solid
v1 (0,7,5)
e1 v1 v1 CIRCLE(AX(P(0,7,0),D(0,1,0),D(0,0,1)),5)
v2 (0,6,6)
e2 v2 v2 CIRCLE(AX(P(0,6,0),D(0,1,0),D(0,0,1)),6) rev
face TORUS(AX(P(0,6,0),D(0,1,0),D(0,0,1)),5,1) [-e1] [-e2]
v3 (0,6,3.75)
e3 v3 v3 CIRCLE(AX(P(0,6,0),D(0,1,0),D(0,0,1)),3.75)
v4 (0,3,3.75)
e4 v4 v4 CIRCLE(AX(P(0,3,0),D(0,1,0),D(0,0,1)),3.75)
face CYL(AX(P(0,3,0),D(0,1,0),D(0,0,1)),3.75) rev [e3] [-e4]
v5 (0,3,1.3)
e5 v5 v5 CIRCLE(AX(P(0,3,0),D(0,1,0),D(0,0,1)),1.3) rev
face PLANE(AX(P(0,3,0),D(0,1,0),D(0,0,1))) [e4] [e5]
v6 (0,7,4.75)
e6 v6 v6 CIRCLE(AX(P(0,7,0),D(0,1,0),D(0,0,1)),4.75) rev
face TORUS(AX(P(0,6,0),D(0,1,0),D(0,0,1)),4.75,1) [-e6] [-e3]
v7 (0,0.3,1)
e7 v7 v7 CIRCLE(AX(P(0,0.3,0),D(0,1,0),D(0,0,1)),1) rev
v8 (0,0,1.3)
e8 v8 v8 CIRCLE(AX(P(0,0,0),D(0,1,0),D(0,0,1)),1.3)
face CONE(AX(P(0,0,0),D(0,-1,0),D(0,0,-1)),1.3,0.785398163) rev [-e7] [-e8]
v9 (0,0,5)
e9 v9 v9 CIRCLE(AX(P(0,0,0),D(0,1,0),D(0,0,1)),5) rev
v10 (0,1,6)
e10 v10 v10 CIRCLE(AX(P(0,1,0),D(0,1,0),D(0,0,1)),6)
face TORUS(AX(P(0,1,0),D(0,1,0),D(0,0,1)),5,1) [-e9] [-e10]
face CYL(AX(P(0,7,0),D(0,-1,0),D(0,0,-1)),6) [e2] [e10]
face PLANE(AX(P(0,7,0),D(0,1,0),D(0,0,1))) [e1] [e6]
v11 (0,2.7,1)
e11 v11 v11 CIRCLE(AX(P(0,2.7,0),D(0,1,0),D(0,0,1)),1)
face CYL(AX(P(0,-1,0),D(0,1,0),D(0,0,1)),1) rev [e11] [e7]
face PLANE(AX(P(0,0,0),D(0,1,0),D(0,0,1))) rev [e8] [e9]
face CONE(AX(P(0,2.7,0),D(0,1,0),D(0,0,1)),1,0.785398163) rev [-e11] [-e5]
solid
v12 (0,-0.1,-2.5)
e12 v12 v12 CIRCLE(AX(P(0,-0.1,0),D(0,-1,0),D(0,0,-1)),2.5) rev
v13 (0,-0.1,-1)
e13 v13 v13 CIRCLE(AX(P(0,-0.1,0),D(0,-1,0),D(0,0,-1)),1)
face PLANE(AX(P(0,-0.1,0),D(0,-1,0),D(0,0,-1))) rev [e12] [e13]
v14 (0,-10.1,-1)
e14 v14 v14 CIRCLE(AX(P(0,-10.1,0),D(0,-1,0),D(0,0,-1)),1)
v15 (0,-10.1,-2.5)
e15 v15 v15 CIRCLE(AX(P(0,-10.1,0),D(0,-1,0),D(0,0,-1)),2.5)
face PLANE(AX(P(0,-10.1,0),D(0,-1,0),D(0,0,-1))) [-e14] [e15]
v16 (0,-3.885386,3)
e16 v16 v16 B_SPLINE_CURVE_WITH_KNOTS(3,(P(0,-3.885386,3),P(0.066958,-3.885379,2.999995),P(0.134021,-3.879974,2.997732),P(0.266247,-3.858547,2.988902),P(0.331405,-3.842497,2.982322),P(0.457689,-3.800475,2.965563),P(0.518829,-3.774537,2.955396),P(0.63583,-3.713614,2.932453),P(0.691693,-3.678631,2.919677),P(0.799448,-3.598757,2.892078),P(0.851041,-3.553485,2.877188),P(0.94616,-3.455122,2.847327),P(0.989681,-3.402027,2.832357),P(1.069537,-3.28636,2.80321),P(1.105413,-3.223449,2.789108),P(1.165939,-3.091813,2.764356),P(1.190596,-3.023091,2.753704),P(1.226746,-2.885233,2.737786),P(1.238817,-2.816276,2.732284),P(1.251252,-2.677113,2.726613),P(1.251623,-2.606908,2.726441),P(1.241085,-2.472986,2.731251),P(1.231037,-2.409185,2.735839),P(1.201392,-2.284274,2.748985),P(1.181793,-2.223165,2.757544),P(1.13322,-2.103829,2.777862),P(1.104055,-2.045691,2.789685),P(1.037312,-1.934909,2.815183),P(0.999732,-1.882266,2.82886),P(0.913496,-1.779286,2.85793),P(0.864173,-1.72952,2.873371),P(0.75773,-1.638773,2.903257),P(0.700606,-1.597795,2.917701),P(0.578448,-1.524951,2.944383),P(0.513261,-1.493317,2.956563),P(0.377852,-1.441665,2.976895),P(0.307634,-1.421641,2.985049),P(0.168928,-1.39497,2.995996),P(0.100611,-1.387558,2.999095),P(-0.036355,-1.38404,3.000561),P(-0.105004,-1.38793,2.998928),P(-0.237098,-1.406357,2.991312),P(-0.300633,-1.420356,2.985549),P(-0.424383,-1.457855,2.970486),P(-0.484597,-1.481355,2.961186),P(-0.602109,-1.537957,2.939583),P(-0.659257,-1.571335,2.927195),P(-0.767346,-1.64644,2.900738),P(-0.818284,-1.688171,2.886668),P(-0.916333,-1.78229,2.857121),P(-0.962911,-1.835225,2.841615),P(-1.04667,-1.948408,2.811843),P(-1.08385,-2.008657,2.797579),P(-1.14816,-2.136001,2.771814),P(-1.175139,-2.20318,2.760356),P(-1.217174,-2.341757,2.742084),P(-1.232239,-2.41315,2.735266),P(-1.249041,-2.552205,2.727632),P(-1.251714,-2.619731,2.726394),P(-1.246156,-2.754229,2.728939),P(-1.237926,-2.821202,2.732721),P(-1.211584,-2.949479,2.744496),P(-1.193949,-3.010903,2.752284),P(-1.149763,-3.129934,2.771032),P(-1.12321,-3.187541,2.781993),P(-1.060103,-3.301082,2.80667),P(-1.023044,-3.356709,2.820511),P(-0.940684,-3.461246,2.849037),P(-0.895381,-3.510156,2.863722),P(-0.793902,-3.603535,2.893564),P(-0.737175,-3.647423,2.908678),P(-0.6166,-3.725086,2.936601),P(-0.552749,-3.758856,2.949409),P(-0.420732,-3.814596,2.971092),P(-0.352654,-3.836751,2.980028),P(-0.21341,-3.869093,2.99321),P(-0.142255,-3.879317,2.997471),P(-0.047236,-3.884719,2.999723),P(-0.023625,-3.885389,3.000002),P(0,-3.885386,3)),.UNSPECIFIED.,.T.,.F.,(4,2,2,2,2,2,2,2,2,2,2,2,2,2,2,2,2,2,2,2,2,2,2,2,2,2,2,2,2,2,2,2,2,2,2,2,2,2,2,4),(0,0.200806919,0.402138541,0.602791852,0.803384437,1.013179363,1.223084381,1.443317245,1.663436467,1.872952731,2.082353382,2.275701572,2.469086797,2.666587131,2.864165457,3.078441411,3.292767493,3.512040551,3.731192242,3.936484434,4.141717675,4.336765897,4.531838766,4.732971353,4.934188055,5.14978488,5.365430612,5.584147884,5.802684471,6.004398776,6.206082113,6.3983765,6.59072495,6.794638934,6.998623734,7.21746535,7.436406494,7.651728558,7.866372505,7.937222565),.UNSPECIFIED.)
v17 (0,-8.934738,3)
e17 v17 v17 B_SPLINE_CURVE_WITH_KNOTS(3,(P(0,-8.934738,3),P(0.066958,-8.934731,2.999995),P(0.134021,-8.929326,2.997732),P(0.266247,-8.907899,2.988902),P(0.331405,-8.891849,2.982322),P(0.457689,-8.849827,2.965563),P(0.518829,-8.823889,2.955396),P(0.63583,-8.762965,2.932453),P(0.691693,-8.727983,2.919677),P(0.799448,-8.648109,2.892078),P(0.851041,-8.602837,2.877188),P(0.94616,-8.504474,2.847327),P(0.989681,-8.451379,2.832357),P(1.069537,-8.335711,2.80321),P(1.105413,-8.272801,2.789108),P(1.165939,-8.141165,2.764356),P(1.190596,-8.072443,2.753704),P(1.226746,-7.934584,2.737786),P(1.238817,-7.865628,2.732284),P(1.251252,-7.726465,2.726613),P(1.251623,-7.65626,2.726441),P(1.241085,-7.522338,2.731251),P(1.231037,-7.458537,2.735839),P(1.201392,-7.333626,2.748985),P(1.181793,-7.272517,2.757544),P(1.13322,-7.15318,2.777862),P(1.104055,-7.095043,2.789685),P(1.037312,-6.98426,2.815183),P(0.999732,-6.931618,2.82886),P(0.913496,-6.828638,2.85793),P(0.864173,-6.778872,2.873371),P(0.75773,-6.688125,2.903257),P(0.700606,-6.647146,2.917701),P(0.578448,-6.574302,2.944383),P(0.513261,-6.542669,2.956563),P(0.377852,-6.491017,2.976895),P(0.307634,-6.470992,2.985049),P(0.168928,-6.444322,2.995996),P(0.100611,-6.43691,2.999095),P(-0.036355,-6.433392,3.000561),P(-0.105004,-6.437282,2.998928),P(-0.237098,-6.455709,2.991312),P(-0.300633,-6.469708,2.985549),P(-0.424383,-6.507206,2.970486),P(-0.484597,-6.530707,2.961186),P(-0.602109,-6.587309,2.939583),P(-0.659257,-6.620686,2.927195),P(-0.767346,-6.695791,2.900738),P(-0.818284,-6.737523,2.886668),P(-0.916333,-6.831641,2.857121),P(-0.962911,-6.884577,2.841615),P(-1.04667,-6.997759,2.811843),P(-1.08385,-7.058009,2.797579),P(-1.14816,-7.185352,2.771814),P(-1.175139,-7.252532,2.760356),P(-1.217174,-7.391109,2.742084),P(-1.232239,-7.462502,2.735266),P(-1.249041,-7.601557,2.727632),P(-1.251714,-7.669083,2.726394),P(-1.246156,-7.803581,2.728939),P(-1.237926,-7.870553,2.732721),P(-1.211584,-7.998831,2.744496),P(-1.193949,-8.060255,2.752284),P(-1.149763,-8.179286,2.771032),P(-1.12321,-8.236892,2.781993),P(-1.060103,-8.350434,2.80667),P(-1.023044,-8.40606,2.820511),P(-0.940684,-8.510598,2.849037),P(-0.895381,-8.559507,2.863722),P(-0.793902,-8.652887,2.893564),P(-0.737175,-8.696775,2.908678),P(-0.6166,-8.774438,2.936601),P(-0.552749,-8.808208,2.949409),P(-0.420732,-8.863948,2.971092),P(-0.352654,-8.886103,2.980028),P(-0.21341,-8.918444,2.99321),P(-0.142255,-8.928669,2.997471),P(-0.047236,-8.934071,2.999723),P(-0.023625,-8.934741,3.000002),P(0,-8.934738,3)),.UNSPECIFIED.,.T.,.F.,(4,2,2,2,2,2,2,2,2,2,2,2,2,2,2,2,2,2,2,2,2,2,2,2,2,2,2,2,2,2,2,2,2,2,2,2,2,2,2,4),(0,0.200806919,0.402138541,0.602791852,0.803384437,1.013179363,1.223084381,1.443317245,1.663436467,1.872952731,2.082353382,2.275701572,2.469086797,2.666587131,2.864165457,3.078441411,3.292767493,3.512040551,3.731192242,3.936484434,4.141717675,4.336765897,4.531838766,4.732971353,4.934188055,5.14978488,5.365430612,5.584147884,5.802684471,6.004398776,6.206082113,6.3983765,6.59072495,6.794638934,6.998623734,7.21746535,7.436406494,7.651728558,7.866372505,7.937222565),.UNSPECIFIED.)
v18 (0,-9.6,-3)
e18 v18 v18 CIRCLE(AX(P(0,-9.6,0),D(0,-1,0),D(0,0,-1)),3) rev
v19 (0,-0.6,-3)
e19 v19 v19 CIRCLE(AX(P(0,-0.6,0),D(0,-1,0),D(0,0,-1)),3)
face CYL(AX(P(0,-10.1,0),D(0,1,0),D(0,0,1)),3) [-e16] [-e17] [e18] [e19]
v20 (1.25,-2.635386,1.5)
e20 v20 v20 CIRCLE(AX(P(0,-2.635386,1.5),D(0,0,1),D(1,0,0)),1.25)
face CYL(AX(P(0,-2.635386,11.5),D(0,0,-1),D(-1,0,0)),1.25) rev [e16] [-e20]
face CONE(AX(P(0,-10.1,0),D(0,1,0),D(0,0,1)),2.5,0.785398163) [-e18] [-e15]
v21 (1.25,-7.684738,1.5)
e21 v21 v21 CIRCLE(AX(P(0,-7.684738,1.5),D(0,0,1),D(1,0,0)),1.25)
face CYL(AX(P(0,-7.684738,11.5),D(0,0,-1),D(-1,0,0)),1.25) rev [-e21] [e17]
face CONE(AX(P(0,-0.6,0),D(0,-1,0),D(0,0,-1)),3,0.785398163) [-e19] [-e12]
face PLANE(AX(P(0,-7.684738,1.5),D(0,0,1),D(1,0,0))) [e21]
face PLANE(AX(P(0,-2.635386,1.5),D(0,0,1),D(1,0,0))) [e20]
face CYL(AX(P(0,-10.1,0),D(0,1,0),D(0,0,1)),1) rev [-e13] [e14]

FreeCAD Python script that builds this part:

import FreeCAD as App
import Part
import Sketcher
from FreeCAD import Vector
Q = App.Units.Quantity


def edges_at(feature, points):
    """Names of the edges that pass closest to the given points."""
    edges = feature.Shape.Edges
    near = lambda p: min(range(len(edges)), key=lambda i: edges[i].distToShape(Part.Vertex(*p))[0])
    return sorted({f"Edge{near(p) + 1}" for p in points})

doc = App.newDocument("Part")
body = doc.addObject("PartDesign::Body", "Body")

# Sketch on XZ plane
sketch1 = body.newObject("Sketcher::SketchObject", "Sketch")
sketch1.AttachmentSupport = (doc.getObject("XZ_Plane"), [""])
sketch1.MapMode = "FlatFace"
sketch1.addGeometry(Part.Circle(Vector(0, 0, 0), Vector(0, 0, 1), 6), False)
sketch1.addConstraint([
    Sketcher.Constraint("Coincident", 0, 3, -1, 1),
    Sketcher.Constraint("Diameter", 0, Q("12 mm")),
])
pad1 = body.newObject("PartDesign::Pad", "Pad")
pad1.Profile = sketch1
pad1.Length = 7
pad1.Reversed = True

# Sketch on XZ plane
sketch2 = body.newObject("Sketcher::SketchObject", "Sketch001")
sketch2.AttachmentSupport = (doc.getObject("XZ_Plane"), [""])
sketch2.MapMode = "FlatFace"
sketch2.AttachmentOffset = App.Placement(Vector(0, 0, -7), App.Rotation())
sketch2.addGeometry(Part.Circle(Vector(0, 0, 0), Vector(0, 0, 1), 3.8), False)
sketch2.addConstraint([
    Sketcher.Constraint("Coincident", 0, 3, -1, 1),
    Sketcher.Constraint("Diameter", 0, Q("7.5 mm")),
])
pocket1 = body.newObject("PartDesign::Pocket", "Pocket")
pocket1.Profile = sketch2
pocket1.Length = 4
pocket1.Reversed = True

# Sketch on XZ plane
sketch3 = body.newObject("Sketcher::SketchObject", "Sketch002")
sketch3.AttachmentSupport = (doc.getObject("XZ_Plane"), [""])
sketch3.MapMode = "FlatFace"
sketch3.AttachmentOffset = App.Placement(Vector(0, 0, -3), App.Rotation())
sketch3.addGeometry(Part.Circle(Vector(0, 0, 0), Vector(0, 0, 1), 1), False)
sketch3.addConstraint([
    Sketcher.Constraint("Coincident", 0, 3, -1, 1),
    Sketcher.Constraint("Diameter", 0, Q("2 mm")),
])
pocket2 = body.newObject("PartDesign::Pocket", "Pocket001")
pocket2.Profile = sketch3
pocket2.Length = 4
pocket2.Reversed = True
doc.recompute()

fillet = body.newObject("PartDesign::Fillet", "Fillet")
fillet.Base = (pocket2, edges_at(pocket2, [(-6, 0, 0), (-6, 7, 0), (-3.75, 7, 0)]))
fillet.Radius = 1
doc.recompute()

chamfer = body.newObject("PartDesign::Chamfer", "Chamfer")
chamfer.Base = (fillet, edges_at(fillet, [(-1, 0, 0), (-1, 3, 0)]))
chamfer.Size = 0.3
body2 = doc.addObject("PartDesign::Body", "Body001")

# Sketch on XZ plane
sketch4 = body2.newObject("Sketcher::SketchObject", "Sketch003")
sketch4.AttachmentSupport = (doc.getObject("XZ_Plane001"), [""])
sketch4.MapMode = "FlatFace"
sketch4.AttachmentOffset = App.Placement(Vector(0, 0, 0.1), App.Rotation())
sketch4.addGeometry([
    Part.Circle(Vector(0, 0, 0), Vector(0, 0, 1), 3),
    Part.Circle(Vector(0, 0, 0), Vector(0, 0, 1), 1),
], False)
sketch4.addConstraint([
    Sketcher.Constraint("Coincident", 0, 3, -1, 1),
    Sketcher.Constraint("Coincident", 1, 3, -1, 1),
    Sketcher.Constraint("Diameter", 0, Q("6 mm")),
    Sketcher.Constraint("Diameter", 1, Q("2 mm")),
])
pad2 = body2.newObject("PartDesign::Pad", "Pad001")
pad2.Profile = sketch4
pad2.Length = 10

# Sketch on XY plane
sketch5 = body2.newObject("Sketcher::SketchObject", "Sketch004")
sketch5.AttachmentSupport = (doc.getObject("XY_Plane001"), [""])
sketch5.MapMode = "FlatFace"
sketch5.AttachmentOffset = App.Placement(Vector(0, 0, 1.5), App.Rotation())
sketch5.addGeometry([
    Part.Circle(Vector(0, -2.6, 0), Vector(0, 0, 1), 1.2),
    Part.Circle(Vector(0, -7.7, 0), Vector(0, 0, 1), 1.2),
], False)
sketch5.addConstraint([
    Sketcher.Constraint("Equal", 0, 1),
    Sketcher.Constraint("PointOnObject", 0, 3, -2),
    Sketcher.Constraint("PointOnObject", 1, 3, -2),
    Sketcher.Constraint("Diameter", 0, Q("2.5 mm")),
    Sketcher.Constraint("DistanceY", 1, 3, -1, 1, Q("7.684738 mm")),
    Sketcher.Constraint("DistanceY", 1, 3, 0, 3, Q("5.049352 mm")),
])
pocket3 = body2.newObject("PartDesign::Pocket", "Pocket002")
pocket3.Profile = sketch5
pocket3.Length = 10
pocket3.Reversed = True
doc.recompute()

chamfer2 = body2.newObject("PartDesign::Chamfer", "Chamfer001")
chamfer2.Base = (pocket3, edges_at(pocket3, [(-3, -0.1, 0), (-3, -10.1, 0)]))
chamfer2.Size = 0.5

doc.recompute()
